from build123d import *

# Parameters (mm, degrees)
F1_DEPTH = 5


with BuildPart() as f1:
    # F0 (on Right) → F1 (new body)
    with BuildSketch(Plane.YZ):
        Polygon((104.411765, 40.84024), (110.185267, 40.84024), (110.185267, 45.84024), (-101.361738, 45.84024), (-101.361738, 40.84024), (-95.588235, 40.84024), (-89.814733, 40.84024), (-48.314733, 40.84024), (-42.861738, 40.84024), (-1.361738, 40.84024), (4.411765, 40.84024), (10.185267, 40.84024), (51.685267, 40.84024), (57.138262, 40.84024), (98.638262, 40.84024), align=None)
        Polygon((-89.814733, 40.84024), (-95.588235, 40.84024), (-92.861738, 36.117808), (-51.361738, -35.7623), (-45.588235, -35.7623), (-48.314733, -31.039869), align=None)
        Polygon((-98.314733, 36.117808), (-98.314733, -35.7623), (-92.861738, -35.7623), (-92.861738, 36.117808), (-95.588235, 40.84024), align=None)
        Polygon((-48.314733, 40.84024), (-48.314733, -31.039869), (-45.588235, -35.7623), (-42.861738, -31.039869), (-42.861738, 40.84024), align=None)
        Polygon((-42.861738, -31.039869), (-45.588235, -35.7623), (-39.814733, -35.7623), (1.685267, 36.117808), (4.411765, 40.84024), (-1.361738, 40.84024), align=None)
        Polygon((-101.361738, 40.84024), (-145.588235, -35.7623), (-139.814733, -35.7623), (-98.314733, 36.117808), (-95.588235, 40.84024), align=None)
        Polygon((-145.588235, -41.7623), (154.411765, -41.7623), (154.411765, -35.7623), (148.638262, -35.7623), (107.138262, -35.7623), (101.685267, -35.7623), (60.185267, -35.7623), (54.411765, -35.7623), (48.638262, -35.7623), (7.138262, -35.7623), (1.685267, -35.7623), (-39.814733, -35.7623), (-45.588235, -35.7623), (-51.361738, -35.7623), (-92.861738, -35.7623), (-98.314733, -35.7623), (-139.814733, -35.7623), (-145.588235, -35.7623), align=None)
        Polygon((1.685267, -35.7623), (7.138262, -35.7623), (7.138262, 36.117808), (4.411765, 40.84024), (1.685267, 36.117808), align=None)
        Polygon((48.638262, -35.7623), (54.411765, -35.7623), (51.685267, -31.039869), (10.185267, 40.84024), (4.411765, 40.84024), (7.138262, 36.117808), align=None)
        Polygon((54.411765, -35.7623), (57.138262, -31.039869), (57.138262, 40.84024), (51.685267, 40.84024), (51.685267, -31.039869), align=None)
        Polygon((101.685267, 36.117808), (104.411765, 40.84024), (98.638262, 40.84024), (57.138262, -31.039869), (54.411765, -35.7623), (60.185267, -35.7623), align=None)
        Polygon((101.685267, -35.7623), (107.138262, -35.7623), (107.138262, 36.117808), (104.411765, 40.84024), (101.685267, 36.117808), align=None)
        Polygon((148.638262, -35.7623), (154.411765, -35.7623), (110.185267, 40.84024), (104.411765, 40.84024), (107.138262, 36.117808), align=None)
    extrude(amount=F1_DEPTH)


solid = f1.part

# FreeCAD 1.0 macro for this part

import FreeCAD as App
import Part
import Sketcher
Q = App.Units.Quantity

doc = App.newDocument("Part")
params = doc.addObject("Spreadsheet::Sheet", "Params")
for row, (alias, value) in enumerate([
    ("sketch1_width", "300 mm"),
    ("sketch1_height", "5 mm"),
    ("sketch1_height2", "6 mm"),
    ("sketch1_length", "83 mm"),
    ("pad1_length", "5 mm"),
], start=1):
    params.set(f"A{row}", alias)
    params.set(f"B{row}", "=" + value)
    params.setAlias(f"B{row}", alias)

body = doc.addObject("PartDesign::Body", "Body")

# Sketch on YZ plane
sketch1 = body.newObject("Sketcher::SketchObject", "Sketch")
sketch1.AttachmentSupport = (doc.getObject("YZ_Plane"), [""])
sketch1.MapMode = "FlatFace"
sketch1.addGeometry(Part.LineSegment(App.Vector(110, 41, 0), App.Vector(110, 46, 0)), False)
sketch1.addGeometry(Part.LineSegment(App.Vector(110, 46, 0), App.Vector(-101, 46, 0)), False)
sketch1.addGeometry(Part.LineSegment(App.Vector(-101, 46, 0), App.Vector(-101, 41, 0)), False)
sketch1.addGeometry(Part.LineSegment(App.Vector(-101, 41, 0), App.Vector(-146, -36, 0)), False)
sketch1.addGeometry(Part.LineSegment(App.Vector(-146, -36, 0), App.Vector(-146, -42, 0)), False)
sketch1.addGeometry(Part.LineSegment(App.Vector(-146, -42, 0), App.Vector(154, -42, 0)), False)
sketch1.addGeometry(Part.LineSegment(App.Vector(154, -42, 0), App.Vector(154, -36, 0)), False)
sketch1.addGeometry(Part.LineSegment(App.Vector(154, -36, 0), App.Vector(110, 41, 0)), False)
sketch1.addGeometry(Part.LineSegment(App.Vector(149, -36, 0), App.Vector(107, -36, 0)), False)
sketch1.addGeometry(Part.LineSegment(App.Vector(107, -36, 0), App.Vector(107, 36, 0)), False)
sketch1.addGeometry(Part.LineSegment(App.Vector(107, 36, 0), App.Vector(149, -36, 0)), False)
sketch1.addGeometry(Part.LineSegment(App.Vector(102, -36, 0), App.Vector(60, -36, 0)), False)
sketch1.addGeometry(Part.LineSegment(App.Vector(60, -36, 0), App.Vector(102, 36, 0)), False)
sketch1.addGeometry(Part.LineSegment(App.Vector(102, 36, 0), App.Vector(102, -36, 0)), False)
sketch1.addGeometry(Part.LineSegment(App.Vector(57, -31, 0), App.Vector(57, 41, 0)), False)
sketch1.addGeometry(Part.LineSegment(App.Vector(57, 41, 0), App.Vector(99, 41, 0)), False)
sketch1.addGeometry(Part.LineSegment(App.Vector(99, 41, 0), App.Vector(57, -31, 0)), False)
sketch1.addGeometry(Part.LineSegment(App.Vector(52, -31, 0), App.Vector(10, 41, 0)), False)
sketch1.addGeometry(Part.LineSegment(App.Vector(10, 41, 0), App.Vector(52, 41, 0)), False)
sketch1.addGeometry(Part.LineSegment(App.Vector(52, 41, 0), App.Vector(52, -31, 0)), False)
sketch1.addGeometry(Part.LineSegment(App.Vector(49, -36, 0), App.Vector(7, -36, 0)), False)
sketch1.addGeometry(Part.LineSegment(App.Vector(7, -36, 0), App.Vector(7, 36, 0)), False)
sketch1.addGeometry(Part.LineSegment(App.Vector(7, 36, 0), App.Vector(49, -36, 0)), False)
sketch1.addGeometry(Part.LineSegment(App.Vector(2, -36, 0), App.Vector(-40, -36, 0)), False)
sketch1.addGeometry(Part.LineSegment(App.Vector(-40, -36, 0), App.Vector(2, 36, 0)), False)
sketch1.addGeometry(Part.LineSegment(App.Vector(2, 36, 0), App.Vector(2, -36, 0)), False)
sketch1.addGeometry(Part.LineSegment(App.Vector(-140, -36, 0), App.Vector(-98, 36, 0)), False)
sketch1.addGeometry(Part.LineSegment(App.Vector(-98, 36, 0), App.Vector(-98, -36, 0)), False)
sketch1.addGeometry(Part.LineSegment(App.Vector(-98, -36, 0), App.Vector(-140, -36, 0)), False)
sketch1.addGeometry(Part.LineSegment(App.Vector(-93, -36, 0), App.Vector(-93, 36, 0)), False)
sketch1.addGeometry(Part.LineSegment(App.Vector(-93, 36, 0), App.Vector(-51, -36, 0)), False)
sketch1.addGeometry(Part.LineSegment(App.Vector(-51, -36, 0), App.Vector(-93, -36, 0)), False)
sketch1.addGeometry(Part.LineSegment(App.Vector(-43, -31, 0), App.Vector(-43, 41, 0)), False)
sketch1.addGeometry(Part.LineSegment(App.Vector(-43, 41, 0), App.Vector(-1, 41, 0)), False)
sketch1.addGeometry(Part.LineSegment(App.Vector(-1, 41, 0), App.Vector(-43, -31, 0)), False)
sketch1.addGeometry(Part.LineSegment(App.Vector(-48, -31, 0), App.Vector(-90, 41, 0)), False)
sketch1.addGeometry(Part.LineSegment(App.Vector(-90, 41, 0), App.Vector(-48, 41, 0)), False)
sketch1.addGeometry(Part.LineSegment(App.Vector(-48, 41, 0), App.Vector(-48, -31, 0)), False)
sketch1.addConstraint(Sketcher.Constraint("Coincident", 0, 2, 1, 1))
sketch1.addConstraint(Sketcher.Constraint("Coincident", 1, 2, 2, 1))
sketch1.addConstraint(Sketcher.Constraint("Coincident", 2, 2, 3, 1))
sketch1.addConstraint(Sketcher.Constraint("Coincident", 3, 2, 4, 1))
sketch1.addConstraint(Sketcher.Constraint("Coincident", 4, 2, 5, 1))
sketch1.addConstraint(Sketcher.Constraint("Coincident", 5, 2, 6, 1))
sketch1.addConstraint(Sketcher.Constraint("Coincident", 6, 2, 7, 1))
sketch1.addConstraint(Sketcher.Constraint("Coincident", 7, 2, 0, 1))
sketch1.addConstraint(Sketcher.Constraint("Coincident", 8, 2, 9, 1))
sketch1.addConstraint(Sketcher.Constraint("Coincident", 9, 2, 10, 1))
sketch1.addConstraint(Sketcher.Constraint("Coincident", 10, 2, 8, 1))
sketch1.addConstraint(Sketcher.Constraint("Coincident", 11, 2, 12, 1))
sketch1.addConstraint(Sketcher.Constraint("Coincident", 12, 2, 13, 1))
sketch1.addConstraint(Sketcher.Constraint("Coincident", 13, 2, 11, 1))
sketch1.addConstraint(Sketcher.Constraint("Coincident", 14, 2, 15, 1))
sketch1.addConstraint(Sketcher.Constraint("Coincident", 15, 2, 16, 1))
sketch1.addConstraint(Sketcher.Constraint("Coincident", 16, 2, 14, 1))
sketch1.addConstraint(Sketcher.Constraint("Coincident", 17, 2, 18, 1))
sketch1.addConstraint(Sketcher.Constraint("Coincident", 18, 2, 19, 1))
sketch1.addConstraint(Sketcher.Constraint("Coincident", 19, 2, 17, 1))
sketch1.addConstraint(Sketcher.Constraint("Coincident", 20, 2, 21, 1))
sketch1.addConstraint(Sketcher.Constraint("Coincident", 21, 2, 22, 1))
sketch1.addConstraint(Sketcher.Constraint("Coincident", 22, 2, 20, 1))
sketch1.addConstraint(Sketcher.Constraint("Coincident", 23, 2, 24, 1))
sketch1.addConstraint(Sketcher.Constraint("Coincident", 24, 2, 25, 1))
sketch1.addConstraint(Sketcher.Constraint("Coincident", 25, 2, 23, 1))
sketch1.addConstraint(Sketcher.Constraint("Coincident", 26, 2, 27, 1))
sketch1.addConstraint(Sketcher.Constraint("Coincident", 27, 2, 28, 1))
sketch1.addConstraint(Sketcher.Constraint("Coincident", 28, 2, 26, 1))
sketch1.addConstraint(Sketcher.Constraint("Coincident", 29, 2, 30, 1))
sketch1.addConstraint(Sketcher.Constraint("Coincident", 30, 2, 31, 1))
sketch1.addConstraint(Sketcher.Constraint("Coincident", 31, 2, 29, 1))
sketch1.addConstraint(Sketcher.Constraint("Coincident", 32, 2, 33, 1))
sketch1.addConstraint(Sketcher.Constraint("Coincident", 33, 2, 34, 1))
sketch1.addConstraint(Sketcher.Constraint("Coincident", 34, 2, 32, 1))
sketch1.addConstraint(Sketcher.Constraint("Coincident", 35, 2, 36, 1))
sketch1.addConstraint(Sketcher.Constraint("Coincident", 36, 2, 37, 1))
sketch1.addConstraint(Sketcher.Constraint("Coincident", 37, 2, 35, 1))
sketch1.addConstraint(Sketcher.Constraint("Vertical", 0))
sketch1.addConstraint(Sketcher.Constraint("Horizontal", 1))
sketch1.addConstraint(Sketcher.Constraint("Vertical", 2))
sketch1.addConstraint(Sketcher.Constraint("Vertical", 4))
sketch1.addConstraint(Sketcher.Constraint("Horizontal", 5))
sketch1.addConstraint(Sketcher.Constraint("Vertical", 6))
sketch1.addConstraint(Sketcher.Constraint("Horizontal", 8))
sketch1.addConstraint(Sketcher.Constraint("Vertical", 9))
sketch1.addConstraint(Sketcher.Constraint("Horizontal", 11))
sketch1.addConstraint(Sketcher.Constraint("Vertical", 13))
sketch1.addConstraint(Sketcher.Constraint("Vertical", 14))
sketch1.addConstraint(Sketcher.Constraint("Horizontal", 15))
sketch1.addConstraint(Sketcher.Constraint("Horizontal", 18))
sketch1.addConstraint(Sketcher.Constraint("Vertical", 19))
sketch1.addConstraint(Sketcher.Constraint("Horizontal", 20))
sketch1.addConstraint(Sketcher.Constraint("Vertical", 21))
sketch1.addConstraint(Sketcher.Constraint("Horizontal", 23))
sketch1.addConstraint(Sketcher.Constraint("Vertical", 25))
sketch1.addConstraint(Sketcher.Constraint("Vertical", 27))
sketch1.addConstraint(Sketcher.Constraint("Horizontal", 28))
sketch1.addConstraint(Sketcher.Constraint("Vertical", 29))
sketch1.addConstraint(Sketcher.Constraint("Horizontal", 31))
sketch1.addConstraint(Sketcher.Constraint("Vertical", 32))
sketch1.addConstraint(Sketcher.Constraint("Horizontal", 33))
sketch1.addConstraint(Sketcher.Constraint("Horizontal", 36))
sketch1.addConstraint(Sketcher.Constraint("Vertical", 37))
sketch1.addConstraint(Sketcher.Constraint("Parallel", 7, 10))
sketch1.addConstraint(Sketcher.Constraint("Parallel", 3, 12))
sketch1.addConstraint(Sketcher.Constraint("Parallel", 12, 16))
sketch1.addConstraint(Sketcher.Constraint("Parallel", 10, 17))
sketch1.addConstraint(Sketcher.Constraint("Parallel", 17, 22))
sketch1.addConstraint(Sketcher.Constraint("Parallel", 16, 24))
sketch1.addConstraint(Sketcher.Constraint("Parallel", 24, 26))
sketch1.addConstraint(Sketcher.Constraint("Parallel", 22, 30))
sketch1.addConstraint(Sketcher.Constraint("Parallel", 26, 34))
sketch1.addConstraint(Sketcher.Constraint("Parallel", 30, 35))
sketch1.addConstraint(Sketcher.Constraint("Horizontal", 3, 2, 6, 2))
sketch1.addConstraint(Sketcher.Constraint("Horizontal", 2, 2, 7, 2))
sketch1.addConstraint(Sketcher.Constraint("Horizontal", 6, 2, 8, 2))
sketch1.addConstraint(Sketcher.Constraint("Horizontal", 10, 2, 11, 2))
sketch1.addConstraint(Sketcher.Constraint("Horizontal", 9, 2, 12, 2))
sketch1.addConstraint(Sketcher.Constraint("Horizontal", 7, 2, 14, 2))
sketch1.addConstraint(Sketcher.Constraint("Horizontal", 15, 2, 17, 2))
sketch1.addConstraint(Sketcher.Constraint("Horizontal", 16, 2, 19, 2))
sketch1.addConstraint(Sketcher.Constraint("Horizontal", 13, 2, 20, 2))
sketch1.addConstraint(Sketcher.Constraint("Horizontal", 12, 2, 21, 2))
sketch1.addConstraint(Sketcher.Constraint("Horizontal", 22, 2, 23, 2))
sketch1.addConstraint(Sketcher.Constraint("Horizontal", 21, 2, 24, 2))
sketch1.addConstraint(Sketcher.Constraint("Horizontal", 24, 2, 26, 2))
sketch1.addConstraint(Sketcher.Constraint("Horizontal", 25, 2, 27, 2))
sketch1.addConstraint(Sketcher.Constraint("Horizontal", 26, 2, 29, 2))
sketch1.addConstraint(Sketcher.Constraint("Horizontal", 28, 2, 30, 2))
sketch1.addConstraint(Sketcher.Constraint("Horizontal", 18, 2, 32, 2))
sketch1.addConstraint(Sketcher.Constraint("Horizontal", 19, 2, 34, 2))
sketch1.addConstraint(Sketcher.Constraint("Horizontal", 33, 2, 35, 2))
sketch1.addConstraint(Sketcher.Constraint("Horizontal", 34, 2, 37, 2))
sketch1.addConstraint(Sketcher.Constraint("Equal", 8, 11))
sketch1.addConstraint(Sketcher.Constraint("Equal", 11, 15))
sketch1.addConstraint(Sketcher.Constraint("DistanceX", 5, 1, 5, 2, Q("300 mm")))
sketch1.addConstraint(Sketcher.Constraint("DistanceY", 0, 1, 0, 2, Q("5 mm")))
sketch1.addConstraint(Sketcher.Constraint("DistanceY", 4, 2, 4, 1, Q("6 mm")))
sketch1.addConstraint(Sketcher.Constraint("Angle", 3, Q("-120 deg")))
sketch1.addConstraint(Sketcher.Constraint("Distance", 10, Q("83 mm")))
sketch1.addConstraint(Sketcher.Constraint("DistanceX", 11, 2, 7, 2, Q("50 mm")))
sketch1.addConstraint(Sketcher.Constraint("DistanceX", 14, 2, 9, 2, Q("50 mm")))
sketch1.addConstraint(Sketcher.Constraint("DistanceX", 17, 2, 11, 2, Q("50 mm")))
sketch1.addConstraint(Sketcher.Constraint("DistanceX", 20, 2, 16, 2, Q("50 mm")))
sketch1.addConstraint(Sketcher.Constraint("DistanceX", 23, 2, 17, 2, Q("50 mm")))
sketch1.addConstraint(Sketcher.Constraint("DistanceX", 32, 2, 21, 2, Q("50 mm")))
sketch1.addConstraint(Sketcher.Constraint("DistanceX", 29, 2, 32, 2, Q("50 mm")))
sketch1.addConstraint(Sketcher.Constraint("DistanceX", 36, 2, 24, 2, Q("50 mm")))
sketch1.addConstraint(Sketcher.Constraint("DistanceX", 2, 2, 8, 2, Q("208.5 mm")))
sketch1.addConstraint(Sketcher.Constraint("DistanceX", 26, 2, 23, 2, Q("58.5 mm")))
sketch1.addConstraint(Sketcher.Constraint("DistanceY", 3, 2, -1, 1, Q("35.7623 mm")))
sketch1.addConstraint(Sketcher.Constraint("DistanceX", 3, 2, 0, 2, Q("255.773502 mm")))
sketch1.addConstraint(Sketcher.Constraint("DistanceX", 1, 2, -1, 1, Q("101.361738 mm")))
sketch1.setExpression("Constraints[96]", "Params.sketch1_width")
sketch1.setExpression("Constraints[97]", "Params.sketch1_height")
sketch1.setExpression("Constraints[98]", "Params.sketch1_height2")
sketch1.setExpression("Constraints[100]", "Params.sketch1_length")
pad1 = body.newObject("PartDesign::Pad", "Pad")
pad1.Profile = sketch1
pad1.setExpression("Length", "Params.pad1_length")

doc.recompute()
